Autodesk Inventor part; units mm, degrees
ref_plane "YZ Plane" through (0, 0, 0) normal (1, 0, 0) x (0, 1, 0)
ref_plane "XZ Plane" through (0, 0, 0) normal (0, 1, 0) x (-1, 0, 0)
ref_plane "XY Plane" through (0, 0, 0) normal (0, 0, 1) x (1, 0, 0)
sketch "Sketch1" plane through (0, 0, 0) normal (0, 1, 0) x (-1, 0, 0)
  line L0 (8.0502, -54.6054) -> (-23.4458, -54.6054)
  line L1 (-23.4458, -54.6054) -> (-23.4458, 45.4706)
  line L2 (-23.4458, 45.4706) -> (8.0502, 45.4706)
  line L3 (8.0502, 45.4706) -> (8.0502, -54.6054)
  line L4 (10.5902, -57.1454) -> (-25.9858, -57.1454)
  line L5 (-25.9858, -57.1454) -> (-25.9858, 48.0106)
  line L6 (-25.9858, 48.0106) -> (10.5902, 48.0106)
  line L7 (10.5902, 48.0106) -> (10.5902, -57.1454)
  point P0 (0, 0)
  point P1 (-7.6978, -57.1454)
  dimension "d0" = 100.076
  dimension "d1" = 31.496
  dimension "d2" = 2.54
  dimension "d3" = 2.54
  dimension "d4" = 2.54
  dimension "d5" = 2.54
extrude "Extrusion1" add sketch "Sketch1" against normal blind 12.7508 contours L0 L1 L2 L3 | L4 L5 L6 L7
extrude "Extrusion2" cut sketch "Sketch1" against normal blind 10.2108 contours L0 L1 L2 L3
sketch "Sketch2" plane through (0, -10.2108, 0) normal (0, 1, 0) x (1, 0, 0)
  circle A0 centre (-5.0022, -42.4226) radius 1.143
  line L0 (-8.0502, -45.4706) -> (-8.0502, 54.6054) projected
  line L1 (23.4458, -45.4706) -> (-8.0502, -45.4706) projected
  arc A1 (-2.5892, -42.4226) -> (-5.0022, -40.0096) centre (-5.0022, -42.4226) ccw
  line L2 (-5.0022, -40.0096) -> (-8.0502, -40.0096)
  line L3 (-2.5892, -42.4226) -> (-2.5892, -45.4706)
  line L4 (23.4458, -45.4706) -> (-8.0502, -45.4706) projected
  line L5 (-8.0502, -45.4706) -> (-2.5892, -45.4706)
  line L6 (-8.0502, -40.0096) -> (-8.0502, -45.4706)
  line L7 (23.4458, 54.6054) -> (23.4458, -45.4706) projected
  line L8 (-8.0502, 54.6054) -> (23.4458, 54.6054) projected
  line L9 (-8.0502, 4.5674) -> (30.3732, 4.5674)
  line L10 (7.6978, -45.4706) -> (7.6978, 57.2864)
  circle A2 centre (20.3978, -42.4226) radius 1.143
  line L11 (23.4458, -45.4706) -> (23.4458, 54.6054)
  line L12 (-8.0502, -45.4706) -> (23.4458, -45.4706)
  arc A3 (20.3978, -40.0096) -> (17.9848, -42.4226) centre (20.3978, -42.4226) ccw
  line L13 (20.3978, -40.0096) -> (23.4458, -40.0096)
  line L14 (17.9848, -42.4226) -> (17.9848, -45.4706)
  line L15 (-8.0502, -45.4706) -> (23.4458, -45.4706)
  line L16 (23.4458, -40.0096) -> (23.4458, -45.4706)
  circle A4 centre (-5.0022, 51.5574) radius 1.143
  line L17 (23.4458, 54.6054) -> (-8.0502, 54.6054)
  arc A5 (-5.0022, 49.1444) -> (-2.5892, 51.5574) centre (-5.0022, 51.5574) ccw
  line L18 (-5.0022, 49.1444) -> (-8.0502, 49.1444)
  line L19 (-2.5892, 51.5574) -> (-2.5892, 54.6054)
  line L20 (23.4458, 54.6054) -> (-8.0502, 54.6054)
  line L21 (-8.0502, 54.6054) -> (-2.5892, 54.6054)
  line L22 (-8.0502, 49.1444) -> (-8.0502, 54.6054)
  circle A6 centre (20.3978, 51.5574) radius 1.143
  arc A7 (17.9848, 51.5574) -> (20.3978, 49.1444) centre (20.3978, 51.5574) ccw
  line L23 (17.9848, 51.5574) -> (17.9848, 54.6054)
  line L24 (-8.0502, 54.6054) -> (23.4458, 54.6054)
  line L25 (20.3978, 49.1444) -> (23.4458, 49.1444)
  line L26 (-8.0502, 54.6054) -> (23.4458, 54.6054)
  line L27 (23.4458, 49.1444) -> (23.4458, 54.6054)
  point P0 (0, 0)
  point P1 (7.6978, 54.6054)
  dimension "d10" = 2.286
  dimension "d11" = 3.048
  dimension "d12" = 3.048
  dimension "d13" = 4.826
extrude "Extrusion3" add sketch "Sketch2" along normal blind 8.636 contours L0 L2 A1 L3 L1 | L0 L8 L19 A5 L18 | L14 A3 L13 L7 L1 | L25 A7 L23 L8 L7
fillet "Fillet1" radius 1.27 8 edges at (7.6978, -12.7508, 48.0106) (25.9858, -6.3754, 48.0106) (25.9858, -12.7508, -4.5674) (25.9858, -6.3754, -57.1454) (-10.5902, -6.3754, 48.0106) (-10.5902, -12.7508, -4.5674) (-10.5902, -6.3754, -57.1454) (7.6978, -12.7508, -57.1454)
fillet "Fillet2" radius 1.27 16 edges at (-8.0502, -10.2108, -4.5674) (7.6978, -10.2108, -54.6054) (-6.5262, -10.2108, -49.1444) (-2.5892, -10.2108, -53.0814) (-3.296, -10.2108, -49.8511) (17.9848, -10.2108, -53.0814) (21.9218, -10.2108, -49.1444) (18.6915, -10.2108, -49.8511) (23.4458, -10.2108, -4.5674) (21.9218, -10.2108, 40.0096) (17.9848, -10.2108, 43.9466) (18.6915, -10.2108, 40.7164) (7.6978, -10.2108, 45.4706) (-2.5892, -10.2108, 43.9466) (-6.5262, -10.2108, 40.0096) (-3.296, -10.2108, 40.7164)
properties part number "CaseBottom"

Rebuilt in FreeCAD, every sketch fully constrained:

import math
import FreeCAD as App
import Part
import Sketcher
Q = App.Units.Quantity


def edges_at(feature, points):
    """Names of the edges that pass closest to the given points."""
    edges = feature.Shape.Edges
    near = lambda p: min(range(len(edges)), key=lambda i: edges[i].distToShape(Part.Vertex(*p))[0])
    return sorted({f"Edge{near(p) + 1}" for p in points})


def add_polygon(sketch, points):
    """Adds a closed chain of lines whose ends are joined by coincident constraints."""
    first, n = sketch.GeometryCount, len(points)
    for a, b in zip(points, points[1:] + points[:1]):
        sketch.addGeometry(Part.LineSegment(App.Vector(*a, 0), App.Vector(*b, 0)), False)
    for i in range(n):
        sketch.addConstraint(Sketcher.Constraint("Coincident", first + i, 2, first + (i + 1) % n, 1))

doc = App.newDocument("Part")
body = doc.addObject("PartDesign::Body", "Body")

# Sketch on XZ plane
sketch1 = body.newObject("Sketcher::SketchObject", "Sketch")
sketch1.AttachmentSupport = (doc.getObject("XZ_Plane"), [""])
sketch1.MapMode = "FlatFace"
add_polygon(sketch1, [(26, -57), (-11, -57), (-11, 48), (26, 48)])  # lines 0-3
sketch1.addConstraint([
    Sketcher.Constraint("Horizontal", 0),
    Sketcher.Constraint("Vertical", 1),
    Sketcher.Constraint("Horizontal", 2),
    Sketcher.Constraint("Vertical", 3),
    Sketcher.Constraint("DistanceX", 0, 2, 0, 1, Q("1.44 in")),
    Sketcher.Constraint("DistanceY", 1, 1, 1, 2, Q("4.14 in")),
    Sketcher.Constraint("DistanceX", 0, 2, -1, 1, 10.5902),
    Sketcher.Constraint("DistanceY", 0, 2, -1, 1, 57.1454),
])
pad1 = body.newObject("PartDesign::Pad", "Pad")
pad1.Profile = sketch1
pad1.Length = Q("0.502 in")

# Sketch on XZ plane
sketch2 = body.newObject("Sketcher::SketchObject", "Sketch001")
sketch2.AttachmentSupport = (doc.getObject("XZ_Plane"), [""])
sketch2.MapMode = "FlatFace"
add_polygon(sketch2, [(23, -55), (-8, -55), (-8, 45), (23, 45)])  # lines 0-3
sketch2.addConstraint([
    Sketcher.Constraint("Horizontal", 0),
    Sketcher.Constraint("Vertical", 1),
    Sketcher.Constraint("Horizontal", 2),
    Sketcher.Constraint("Vertical", 3),
    Sketcher.Constraint("DistanceX", 0, 2, 0, 1, Q("1.24 in")),
    Sketcher.Constraint("DistanceY", 1, 1, 1, 2, Q("3.94 in")),
    Sketcher.Constraint("DistanceX", 0, 2, -1, 1, 8.0502),
    Sketcher.Constraint("DistanceY", 0, 2, -1, 1, 54.6054),
])
pocket1 = body.newObject("PartDesign::Pocket", "Pocket")
pocket1.Profile = sketch2
pocket1.Length = Q("0.402 in")
pocket1.Reversed = True

# Sketch on XZ plane
sketch3 = body.newObject("Sketcher::SketchObject", "Sketch002")
sketch3.AttachmentSupport = (doc.getObject("XZ_Plane"), [""])
sketch3.MapMode = "FlatFace"
sketch3.AttachmentOffset = App.Placement(App.Vector(0, 0, 0.402 * 25.4), App.Rotation())
sketch3.addGeometry([
    Part.LineSegment(App.Vector(-8.1, 40, 0), App.Vector(-8.1, 45.5, 0)),  # 0
    Part.LineSegment(App.Vector(-8.1, 45.5, 0), App.Vector(-2.6, 45.5, 0)),  # 1
    Part.LineSegment(App.Vector(-2.6, 45.5, 0), App.Vector(-2.6, 42.4, 0)),  # 2
    Part.ArcOfCircle(Part.Circle(App.Vector(-5, 42.4, 0), App.Vector(0, 0, 1), 2.4), math.radians(-90), math.radians(0)),  # 3
    Part.LineSegment(App.Vector(-5, 40, 0), App.Vector(-8.1, 40, 0)),  # 4
    Part.Circle(App.Vector(-5, 42.4, 0), App.Vector(0, 0, 1), 1.1),  # 5
    Part.LineSegment(App.Vector(-8.1, -54.6, 0), App.Vector(-8.1, -49.1, 0)),  # 6
    Part.LineSegment(App.Vector(-8.1, -49.1, 0), App.Vector(-5, -49.1, 0)),  # 7
    Part.ArcOfCircle(Part.Circle(App.Vector(-5, -51.6, 0), App.Vector(0, 0, 1), 2.4), math.radians(0), math.radians(90)),  # 8
    Part.LineSegment(App.Vector(-2.6, -51.6, 0), App.Vector(-2.6, -54.6, 0)),  # 9
    Part.LineSegment(App.Vector(-2.6, -54.6, 0), App.Vector(-8.1, -54.6, 0)),  # 10
    Part.Circle(App.Vector(-5, -51.6, 0), App.Vector(0, 0, 1), 1.1),  # 11
    Part.LineSegment(App.Vector(18, 42.4, 0), App.Vector(18, 45.5, 0)),  # 12
    Part.LineSegment(App.Vector(18, 45.5, 0), App.Vector(23.4, 45.5, 0)),  # 13
    Part.LineSegment(App.Vector(23.4, 45.5, 0), App.Vector(23.4, 40, 0)),  # 14
    Part.LineSegment(App.Vector(23.4, 40, 0), App.Vector(20.4, 40, 0)),  # 15
    Part.ArcOfCircle(Part.Circle(App.Vector(20.4, 42.4, 0), App.Vector(0, 0, 1), 2.4), math.radians(180), math.radians(270)),  # 16
    Part.Circle(App.Vector(20.4, 42.4, 0), App.Vector(0, 0, 1), 1.1),  # 17
    Part.LineSegment(App.Vector(20.4, -49.1, 0), App.Vector(23.4, -49.1, 0)),  # 18
    Part.LineSegment(App.Vector(23.4, -49.1, 0), App.Vector(23.4, -54.6, 0)),  # 19
    Part.LineSegment(App.Vector(23.4, -54.6, 0), App.Vector(18, -54.6, 0)),  # 20
    Part.LineSegment(App.Vector(18, -54.6, 0), App.Vector(18, -51.6, 0)),  # 21
    Part.ArcOfCircle(Part.Circle(App.Vector(20.4, -51.6, 0), App.Vector(0, 0, 1), 2.4), math.radians(90), math.radians(180)),  # 22
    Part.Circle(App.Vector(20.4, -51.6, 0), App.Vector(0, 0, 1), 1.1),  # 23
], False)
sketch3.addConstraint([
    Sketcher.Constraint("Coincident", 0, 2, 1, 1),
    Sketcher.Constraint("Coincident", 1, 2, 2, 1),
    Sketcher.Constraint("Tangent", 2, 2, 3, 2),
    Sketcher.Constraint("Tangent", 3, 1, 4, 1),
    Sketcher.Constraint("Coincident", 4, 2, 0, 1),
    Sketcher.Constraint("Coincident", 6, 2, 7, 1),
    Sketcher.Constraint("Tangent", 7, 2, 8, 2),
    Sketcher.Constraint("Tangent", 8, 1, 9, 1),
    Sketcher.Constraint("Coincident", 9, 2, 10, 1),
    Sketcher.Constraint("Coincident", 10, 2, 6, 1),
    Sketcher.Constraint("Coincident", 12, 2, 13, 1),
    Sketcher.Constraint("Coincident", 13, 2, 14, 1),
    Sketcher.Constraint("Coincident", 14, 2, 15, 1),
    Sketcher.Constraint("Tangent", 15, 2, 16, 2),
    Sketcher.Constraint("Tangent", 16, 1, 12, 1),
    Sketcher.Constraint("Coincident", 18, 2, 19, 1),
    Sketcher.Constraint("Coincident", 19, 2, 20, 1),
    Sketcher.Constraint("Coincident", 20, 2, 21, 1),
    Sketcher.Constraint("Tangent", 21, 2, 22, 2),
    Sketcher.Constraint("Tangent", 22, 1, 18, 1),
    Sketcher.Constraint("Vertical", 0),
    Sketcher.Constraint("Horizontal", 1),
    Sketcher.Constraint("Vertical", 2),
    Sketcher.Constraint("Horizontal", 4),
    Sketcher.Constraint("Vertical", 6),
    Sketcher.Constraint("Horizontal", 7),
    Sketcher.Constraint("Vertical", 9),
    Sketcher.Constraint("Horizontal", 10),
    Sketcher.Constraint("Vertical", 12),
    Sketcher.Constraint("Horizontal", 13),
    Sketcher.Constraint("Vertical", 14),
    Sketcher.Constraint("Horizontal", 15),
    Sketcher.Constraint("Horizontal", 18),
    Sketcher.Constraint("Vertical", 19),
    Sketcher.Constraint("Horizontal", 20),
    Sketcher.Constraint("Vertical", 21),
    Sketcher.Constraint("Coincident", 5, 3, 3, 3),
    Sketcher.Constraint("Coincident", 11, 3, 8, 3),
    Sketcher.Constraint("Coincident", 17, 3, 16, 3),
    Sketcher.Constraint("Coincident", 23, 3, 22, 3),
    Sketcher.Constraint("Equal", 3, 8),
    Sketcher.Constraint("Equal", 5, 11),
    Sketcher.Constraint("Equal", 8, 16),
    Sketcher.Constraint("Equal", 11, 17),
    Sketcher.Constraint("Equal", 16, 22),
    Sketcher.Constraint("Equal", 17, 23),
    Sketcher.Constraint("Horizontal", 5, 3, 16, 3),
    Sketcher.Constraint("Horizontal", 11, 3, 22, 3),
    Sketcher.Constraint("Horizontal", 1, 2, 12, 2),
    Sketcher.Constraint("Horizontal", 10, 2, 19, 2),
    Sketcher.Constraint("Vertical", 5, 3, 8, 3),
    Sketcher.Constraint("Vertical", 17, 3, 22, 3),
    Sketcher.Constraint("Vertical", 4, 2, 6, 2),
    Sketcher.Constraint("Vertical", 14, 2, 18, 2),
    Sketcher.Constraint("Equal", 10, 13),
    Sketcher.Constraint("Equal", 20, 0),
    Sketcher.Constraint("Equal", 0, 6),
    Sketcher.Constraint("Diameter", 5, Q("0.09 in")),
    Sketcher.Constraint("Radius", 3, Q("0.095 in")),
    Sketcher.Constraint("DistanceX", 4, 2, 4, 1, Q("0.12 in")),
    Sketcher.Constraint("DistanceX", 3, 3, 16, 3, Q("1 in")),
    Sketcher.Constraint("DistanceY", 8, 3, 3, 3, Q("3.7 in")),
    Sketcher.Constraint("DistanceX", 3, 3, -1, 1, 5.0022),
    Sketcher.Constraint("DistanceY", -1, 1, 3, 3, 42.4226),
])
pad2 = body.newObject("PartDesign::Pad", "Pad001")
pad2.Profile = sketch3
pad2.Length = Q("0.34 in")
pad2.Reversed = True
doc.recompute()

fillet = body.newObject("PartDesign::Fillet", "Fillet")
fillet.Base = (pad2, edges_at(pad2, [
    (7.698, -12.751, 48.011),
    (25.986, -6.375, 48.011),
    (25.986, -12.751, -4.567),
    (25.986, -6.375, -57.145),
    (-10.59, -6.375, 48.011),
    (-10.59, -12.751, -4.567),
    (-10.59, -6.375, -57.145),
    (7.698, -12.751, -57.145),
]))
fillet.Radius = Q("0.05 in")
doc.recompute()

fillet2 = body.newObject("PartDesign::Fillet", "Fillet001")
fillet2.Base = (fillet, edges_at(fillet, [
    (-8.05, -10.211, -4.567),
    (7.698, -10.211, -54.605),
    (-6.526, -10.211, -49.144),
    (-2.589, -10.211, -53.081),
    (-3.296, -10.211, -49.851),
    (17.985, -10.211, -53.081),
    (21.922, -10.211, -49.144),
    (18.692, -10.211, -49.851),
    (23.446, -10.211, -4.567),
    (21.922, -10.211, 40.01),
    (17.985, -10.211, 43.947),
    (18.692, -10.211, 40.716),
    (7.698, -10.211, 45.471),
    (-2.589, -10.211, 43.947),
    (-6.526, -10.211, 40.01),
    (-3.296, -10.211, 40.716),
]))
fillet2.Radius = Q("0.05 in")

doc.recompute()
